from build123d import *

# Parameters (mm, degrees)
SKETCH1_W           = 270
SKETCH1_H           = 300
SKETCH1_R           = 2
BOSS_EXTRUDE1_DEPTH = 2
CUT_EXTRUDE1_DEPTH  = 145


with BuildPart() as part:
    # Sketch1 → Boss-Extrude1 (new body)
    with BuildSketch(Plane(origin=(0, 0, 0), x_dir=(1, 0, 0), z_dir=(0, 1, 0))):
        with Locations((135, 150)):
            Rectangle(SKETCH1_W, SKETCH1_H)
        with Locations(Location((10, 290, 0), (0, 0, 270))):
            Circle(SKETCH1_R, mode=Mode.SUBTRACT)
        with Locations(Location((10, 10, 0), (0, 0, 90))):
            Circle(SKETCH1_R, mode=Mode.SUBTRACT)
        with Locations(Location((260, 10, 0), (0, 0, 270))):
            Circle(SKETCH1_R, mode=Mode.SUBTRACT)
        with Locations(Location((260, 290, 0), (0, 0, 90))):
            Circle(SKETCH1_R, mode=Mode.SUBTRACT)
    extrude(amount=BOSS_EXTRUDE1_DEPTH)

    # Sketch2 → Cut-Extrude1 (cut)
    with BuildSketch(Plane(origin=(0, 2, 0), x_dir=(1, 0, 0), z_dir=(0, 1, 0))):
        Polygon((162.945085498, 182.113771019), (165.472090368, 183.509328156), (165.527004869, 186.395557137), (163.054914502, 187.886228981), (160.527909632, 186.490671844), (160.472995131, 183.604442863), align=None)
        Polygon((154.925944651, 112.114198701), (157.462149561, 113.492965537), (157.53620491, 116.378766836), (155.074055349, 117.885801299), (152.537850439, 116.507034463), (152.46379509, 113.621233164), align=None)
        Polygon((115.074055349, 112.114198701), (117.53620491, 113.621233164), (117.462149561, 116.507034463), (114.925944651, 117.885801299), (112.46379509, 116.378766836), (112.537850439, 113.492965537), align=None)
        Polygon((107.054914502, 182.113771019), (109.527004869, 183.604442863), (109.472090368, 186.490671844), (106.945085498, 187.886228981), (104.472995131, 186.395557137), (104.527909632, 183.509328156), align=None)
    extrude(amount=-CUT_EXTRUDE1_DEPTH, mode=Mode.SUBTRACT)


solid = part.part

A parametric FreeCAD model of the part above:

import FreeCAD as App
import Part
import Sketcher

V = App.Vector
Q = App.Units.Quantity


def add_polygon(sketch, points):
    """Adds a closed chain of lines whose ends are joined by coincident constraints."""
    first, n = sketch.GeometryCount, len(points)
    for a, b in zip(points, points[1:] + points[:1]):
        sketch.addGeometry(Part.LineSegment(App.Vector(*a, 0), App.Vector(*b, 0)), False)
    for i in range(n):
        sketch.addConstraint(Sketcher.Constraint("Coincident", first + i, 2, first + (i + 1) % n, 1))

doc = App.newDocument("Part")
body = doc.addObject("PartDesign::Body", "Body")

# Sketch on XZ plane
sketch1 = body.newObject("Sketcher::SketchObject", "Sketch")
sketch1.AttachmentSupport = (doc.getObject("XZ_Plane"), [""])
sketch1.MapMode = "FlatFace"
add_polygon(sketch1, [(0, -300), (0, 0), (270, 0), (270, -300)])  # lines 0-3
sketch1.addGeometry(Part.Circle(V(10, -10, 0), V(0, 0, 1), 2), False)  # 4
sketch1.addGeometry(Part.Circle(V(260, -10, 0), V(0, 0, 1), 2), False)  # 5
sketch1.addGeometry(Part.Circle(V(10, -290, 0), V(0, 0, 1), 2), False)  # 6
sketch1.addGeometry(Part.Circle(V(260, -290, 0), V(0, 0, 1), 2), False)  # 7
sketch1.addConstraint([
    Sketcher.Constraint("Vertical", 0),
    Sketcher.Constraint("Horizontal", 1),
    Sketcher.Constraint("Vertical", 2),
    Sketcher.Constraint("Horizontal", 3),
    Sketcher.Constraint("Coincident", 0, 2, -1, 1),
    Sketcher.Constraint("Equal", 4, 5),
    Sketcher.Constraint("Equal", 5, 6),
    Sketcher.Constraint("Equal", 6, 7),
    Sketcher.Constraint("Horizontal", 4, 3, 5, 3),
    Sketcher.Constraint("Horizontal", 6, 3, 7, 3),
    Sketcher.Constraint("Vertical", 4, 3, 6, 3),
    Sketcher.Constraint("Vertical", 5, 3, 7, 3),
    Sketcher.Constraint("Diameter", 4, Q("4 mm")),
    Sketcher.Constraint("DistanceX", 1, 1, 1, 2, Q("270 mm")),
    Sketcher.Constraint("DistanceY", 0, 1, 0, 2, Q("300 mm")),
    Sketcher.Constraint("DistanceX", -1, 1, 4, 3, Q("10 mm")),
    Sketcher.Constraint("DistanceY", 4, 3, -1, 1, Q("10 mm")),
    Sketcher.Constraint("DistanceX", -1, 1, 5, 3, Q("260 mm")),
    Sketcher.Constraint("DistanceY", 6, 3, -1, 1, Q("290 mm")),
])
pad1 = body.newObject("PartDesign::Pad", "Pad")
pad1.Profile = sketch1
pad1.Length = 2
pad1.Reversed = True

# Sketch on XZ plane
sketch2 = body.newObject("Sketcher::SketchObject", "Sketch001")
sketch2.AttachmentSupport = (doc.getObject("XZ_Plane"), [""])
sketch2.MapMode = "FlatFace"
sketch2.AttachmentOffset = App.Placement(V(0, 0, -2), App.Rotation())
add_polygon(sketch2, [(162.945085, -182.113771), (165.47209, -183.509328), (165.527005, -186.395557), (163.054915, -187.886229), (160.52791, -186.490672), (160.472995, -183.604443)])  # lines 0-5
add_polygon(sketch2, [(154.925945, -112.114199), (157.46215, -113.492966), (157.536205, -116.378767), (155.074055, -117.885801), (152.53785, -116.507034), (152.463795, -113.621233)])  # lines 6-11
add_polygon(sketch2, [(115.074055, -112.114199), (117.536205, -113.621233), (117.46215, -116.507034), (114.925945, -117.885801), (112.463795, -116.378767), (112.53785, -113.492966)])  # lines 12-17
add_polygon(sketch2, [(107.054915, -182.113771), (109.527005, -183.604443), (109.47209, -186.490672), (106.945085, -187.886229), (104.472995, -186.395557), (104.52791, -183.509328)])  # lines 18-23
sketch2.addConstraint([
    Sketcher.Constraint("Parallel", 0, 3),
    Sketcher.Constraint("Parallel", 1, 4),
    Sketcher.Constraint("Parallel", 2, 5),
    Sketcher.Constraint("Parallel", 6, 9),
    Sketcher.Constraint("Parallel", 7, 10),
    Sketcher.Constraint("Parallel", 8, 11),
    Sketcher.Constraint("Parallel", 12, 15),
    Sketcher.Constraint("Parallel", 13, 16),
    Sketcher.Constraint("Parallel", 14, 17),
    Sketcher.Constraint("Parallel", 18, 21),
    Sketcher.Constraint("Parallel", 19, 22),
    Sketcher.Constraint("Parallel", 20, 23),
    Sketcher.Constraint("Horizontal", 10, 2, 12, 2),
    Sketcher.Constraint("Horizontal", 9, 2, 13, 2),
    Sketcher.Constraint("Horizontal", 8, 2, 14, 2),
    Sketcher.Constraint("Horizontal", 7, 2, 15, 2),
    Sketcher.Constraint("Horizontal", 6, 2, 16, 2),
    Sketcher.Constraint("Horizontal", 4, 2, 18, 2),
    Sketcher.Constraint("Horizontal", 3, 2, 19, 2),
    Sketcher.Constraint("Horizontal", 2, 2, 20, 2),
    Sketcher.Constraint("Horizontal", 1, 2, 21, 2),
    Sketcher.Constraint("Horizontal", 0, 2, 22, 2),
    Sketcher.Constraint("Equal", 0, 1),
    Sketcher.Constraint("Equal", 1, 2),
    Sketcher.Constraint("Equal", 2, 3),
    Sketcher.Constraint("Equal", 5, 6),
    Sketcher.Constraint("Equal", 6, 7),
    Sketcher.Constraint("Equal", 7, 8),
    Sketcher.Constraint("Equal", 8, 9),
    Sketcher.Constraint("Equal", 11, 12),
    Sketcher.Constraint("Equal", 12, 13),
    Sketcher.Constraint("Equal", 13, 14),
    Sketcher.Constraint("Equal", 17, 18),
    Sketcher.Constraint("Equal", 18, 19),
    Sketcher.Constraint("Equal", 19, 20),
    Sketcher.Constraint("DistanceX", 15, 2, 10, 2, Q("40 mm")),
    Sketcher.Constraint("DistanceX", 21, 2, 4, 2, Q("56 mm")),
    Sketcher.Constraint("Angle", 0, Q("-28.91 deg")),
    Sketcher.Constraint("Angle", 1, Q("-88.91 deg")),
    Sketcher.Constraint("Angle", 2, Q("-148.91 deg")),
    Sketcher.Constraint("Angle", 6, Q("-28.53 deg")),
    Sketcher.Constraint("Angle", 7, Q("-88.53 deg")),
    Sketcher.Constraint("Angle", 8, Q("-148.53 deg")),
    Sketcher.Constraint("DistanceY", 8, 2, -1, 1, Q("117.885801 mm")),
    Sketcher.Constraint("DistanceY", 11, 2, -1, 1, Q("112.114199 mm")),
    Sketcher.Constraint("DistanceX", -1, 1, 0, 2, Q("165.47209 mm")),
    Sketcher.Constraint("DistanceY", 0, 2, -1, 1, Q("183.509328 mm")),
    Sketcher.Constraint("DistanceX", -1, 1, 6, 2, Q("157.46215 mm")),
])
pocket1 = body.newObject("PartDesign::Pocket", "Pocket")
pocket1.Profile = sketch2
pocket1.Length = 145
pocket1.Reversed = True

doc.recompute()
